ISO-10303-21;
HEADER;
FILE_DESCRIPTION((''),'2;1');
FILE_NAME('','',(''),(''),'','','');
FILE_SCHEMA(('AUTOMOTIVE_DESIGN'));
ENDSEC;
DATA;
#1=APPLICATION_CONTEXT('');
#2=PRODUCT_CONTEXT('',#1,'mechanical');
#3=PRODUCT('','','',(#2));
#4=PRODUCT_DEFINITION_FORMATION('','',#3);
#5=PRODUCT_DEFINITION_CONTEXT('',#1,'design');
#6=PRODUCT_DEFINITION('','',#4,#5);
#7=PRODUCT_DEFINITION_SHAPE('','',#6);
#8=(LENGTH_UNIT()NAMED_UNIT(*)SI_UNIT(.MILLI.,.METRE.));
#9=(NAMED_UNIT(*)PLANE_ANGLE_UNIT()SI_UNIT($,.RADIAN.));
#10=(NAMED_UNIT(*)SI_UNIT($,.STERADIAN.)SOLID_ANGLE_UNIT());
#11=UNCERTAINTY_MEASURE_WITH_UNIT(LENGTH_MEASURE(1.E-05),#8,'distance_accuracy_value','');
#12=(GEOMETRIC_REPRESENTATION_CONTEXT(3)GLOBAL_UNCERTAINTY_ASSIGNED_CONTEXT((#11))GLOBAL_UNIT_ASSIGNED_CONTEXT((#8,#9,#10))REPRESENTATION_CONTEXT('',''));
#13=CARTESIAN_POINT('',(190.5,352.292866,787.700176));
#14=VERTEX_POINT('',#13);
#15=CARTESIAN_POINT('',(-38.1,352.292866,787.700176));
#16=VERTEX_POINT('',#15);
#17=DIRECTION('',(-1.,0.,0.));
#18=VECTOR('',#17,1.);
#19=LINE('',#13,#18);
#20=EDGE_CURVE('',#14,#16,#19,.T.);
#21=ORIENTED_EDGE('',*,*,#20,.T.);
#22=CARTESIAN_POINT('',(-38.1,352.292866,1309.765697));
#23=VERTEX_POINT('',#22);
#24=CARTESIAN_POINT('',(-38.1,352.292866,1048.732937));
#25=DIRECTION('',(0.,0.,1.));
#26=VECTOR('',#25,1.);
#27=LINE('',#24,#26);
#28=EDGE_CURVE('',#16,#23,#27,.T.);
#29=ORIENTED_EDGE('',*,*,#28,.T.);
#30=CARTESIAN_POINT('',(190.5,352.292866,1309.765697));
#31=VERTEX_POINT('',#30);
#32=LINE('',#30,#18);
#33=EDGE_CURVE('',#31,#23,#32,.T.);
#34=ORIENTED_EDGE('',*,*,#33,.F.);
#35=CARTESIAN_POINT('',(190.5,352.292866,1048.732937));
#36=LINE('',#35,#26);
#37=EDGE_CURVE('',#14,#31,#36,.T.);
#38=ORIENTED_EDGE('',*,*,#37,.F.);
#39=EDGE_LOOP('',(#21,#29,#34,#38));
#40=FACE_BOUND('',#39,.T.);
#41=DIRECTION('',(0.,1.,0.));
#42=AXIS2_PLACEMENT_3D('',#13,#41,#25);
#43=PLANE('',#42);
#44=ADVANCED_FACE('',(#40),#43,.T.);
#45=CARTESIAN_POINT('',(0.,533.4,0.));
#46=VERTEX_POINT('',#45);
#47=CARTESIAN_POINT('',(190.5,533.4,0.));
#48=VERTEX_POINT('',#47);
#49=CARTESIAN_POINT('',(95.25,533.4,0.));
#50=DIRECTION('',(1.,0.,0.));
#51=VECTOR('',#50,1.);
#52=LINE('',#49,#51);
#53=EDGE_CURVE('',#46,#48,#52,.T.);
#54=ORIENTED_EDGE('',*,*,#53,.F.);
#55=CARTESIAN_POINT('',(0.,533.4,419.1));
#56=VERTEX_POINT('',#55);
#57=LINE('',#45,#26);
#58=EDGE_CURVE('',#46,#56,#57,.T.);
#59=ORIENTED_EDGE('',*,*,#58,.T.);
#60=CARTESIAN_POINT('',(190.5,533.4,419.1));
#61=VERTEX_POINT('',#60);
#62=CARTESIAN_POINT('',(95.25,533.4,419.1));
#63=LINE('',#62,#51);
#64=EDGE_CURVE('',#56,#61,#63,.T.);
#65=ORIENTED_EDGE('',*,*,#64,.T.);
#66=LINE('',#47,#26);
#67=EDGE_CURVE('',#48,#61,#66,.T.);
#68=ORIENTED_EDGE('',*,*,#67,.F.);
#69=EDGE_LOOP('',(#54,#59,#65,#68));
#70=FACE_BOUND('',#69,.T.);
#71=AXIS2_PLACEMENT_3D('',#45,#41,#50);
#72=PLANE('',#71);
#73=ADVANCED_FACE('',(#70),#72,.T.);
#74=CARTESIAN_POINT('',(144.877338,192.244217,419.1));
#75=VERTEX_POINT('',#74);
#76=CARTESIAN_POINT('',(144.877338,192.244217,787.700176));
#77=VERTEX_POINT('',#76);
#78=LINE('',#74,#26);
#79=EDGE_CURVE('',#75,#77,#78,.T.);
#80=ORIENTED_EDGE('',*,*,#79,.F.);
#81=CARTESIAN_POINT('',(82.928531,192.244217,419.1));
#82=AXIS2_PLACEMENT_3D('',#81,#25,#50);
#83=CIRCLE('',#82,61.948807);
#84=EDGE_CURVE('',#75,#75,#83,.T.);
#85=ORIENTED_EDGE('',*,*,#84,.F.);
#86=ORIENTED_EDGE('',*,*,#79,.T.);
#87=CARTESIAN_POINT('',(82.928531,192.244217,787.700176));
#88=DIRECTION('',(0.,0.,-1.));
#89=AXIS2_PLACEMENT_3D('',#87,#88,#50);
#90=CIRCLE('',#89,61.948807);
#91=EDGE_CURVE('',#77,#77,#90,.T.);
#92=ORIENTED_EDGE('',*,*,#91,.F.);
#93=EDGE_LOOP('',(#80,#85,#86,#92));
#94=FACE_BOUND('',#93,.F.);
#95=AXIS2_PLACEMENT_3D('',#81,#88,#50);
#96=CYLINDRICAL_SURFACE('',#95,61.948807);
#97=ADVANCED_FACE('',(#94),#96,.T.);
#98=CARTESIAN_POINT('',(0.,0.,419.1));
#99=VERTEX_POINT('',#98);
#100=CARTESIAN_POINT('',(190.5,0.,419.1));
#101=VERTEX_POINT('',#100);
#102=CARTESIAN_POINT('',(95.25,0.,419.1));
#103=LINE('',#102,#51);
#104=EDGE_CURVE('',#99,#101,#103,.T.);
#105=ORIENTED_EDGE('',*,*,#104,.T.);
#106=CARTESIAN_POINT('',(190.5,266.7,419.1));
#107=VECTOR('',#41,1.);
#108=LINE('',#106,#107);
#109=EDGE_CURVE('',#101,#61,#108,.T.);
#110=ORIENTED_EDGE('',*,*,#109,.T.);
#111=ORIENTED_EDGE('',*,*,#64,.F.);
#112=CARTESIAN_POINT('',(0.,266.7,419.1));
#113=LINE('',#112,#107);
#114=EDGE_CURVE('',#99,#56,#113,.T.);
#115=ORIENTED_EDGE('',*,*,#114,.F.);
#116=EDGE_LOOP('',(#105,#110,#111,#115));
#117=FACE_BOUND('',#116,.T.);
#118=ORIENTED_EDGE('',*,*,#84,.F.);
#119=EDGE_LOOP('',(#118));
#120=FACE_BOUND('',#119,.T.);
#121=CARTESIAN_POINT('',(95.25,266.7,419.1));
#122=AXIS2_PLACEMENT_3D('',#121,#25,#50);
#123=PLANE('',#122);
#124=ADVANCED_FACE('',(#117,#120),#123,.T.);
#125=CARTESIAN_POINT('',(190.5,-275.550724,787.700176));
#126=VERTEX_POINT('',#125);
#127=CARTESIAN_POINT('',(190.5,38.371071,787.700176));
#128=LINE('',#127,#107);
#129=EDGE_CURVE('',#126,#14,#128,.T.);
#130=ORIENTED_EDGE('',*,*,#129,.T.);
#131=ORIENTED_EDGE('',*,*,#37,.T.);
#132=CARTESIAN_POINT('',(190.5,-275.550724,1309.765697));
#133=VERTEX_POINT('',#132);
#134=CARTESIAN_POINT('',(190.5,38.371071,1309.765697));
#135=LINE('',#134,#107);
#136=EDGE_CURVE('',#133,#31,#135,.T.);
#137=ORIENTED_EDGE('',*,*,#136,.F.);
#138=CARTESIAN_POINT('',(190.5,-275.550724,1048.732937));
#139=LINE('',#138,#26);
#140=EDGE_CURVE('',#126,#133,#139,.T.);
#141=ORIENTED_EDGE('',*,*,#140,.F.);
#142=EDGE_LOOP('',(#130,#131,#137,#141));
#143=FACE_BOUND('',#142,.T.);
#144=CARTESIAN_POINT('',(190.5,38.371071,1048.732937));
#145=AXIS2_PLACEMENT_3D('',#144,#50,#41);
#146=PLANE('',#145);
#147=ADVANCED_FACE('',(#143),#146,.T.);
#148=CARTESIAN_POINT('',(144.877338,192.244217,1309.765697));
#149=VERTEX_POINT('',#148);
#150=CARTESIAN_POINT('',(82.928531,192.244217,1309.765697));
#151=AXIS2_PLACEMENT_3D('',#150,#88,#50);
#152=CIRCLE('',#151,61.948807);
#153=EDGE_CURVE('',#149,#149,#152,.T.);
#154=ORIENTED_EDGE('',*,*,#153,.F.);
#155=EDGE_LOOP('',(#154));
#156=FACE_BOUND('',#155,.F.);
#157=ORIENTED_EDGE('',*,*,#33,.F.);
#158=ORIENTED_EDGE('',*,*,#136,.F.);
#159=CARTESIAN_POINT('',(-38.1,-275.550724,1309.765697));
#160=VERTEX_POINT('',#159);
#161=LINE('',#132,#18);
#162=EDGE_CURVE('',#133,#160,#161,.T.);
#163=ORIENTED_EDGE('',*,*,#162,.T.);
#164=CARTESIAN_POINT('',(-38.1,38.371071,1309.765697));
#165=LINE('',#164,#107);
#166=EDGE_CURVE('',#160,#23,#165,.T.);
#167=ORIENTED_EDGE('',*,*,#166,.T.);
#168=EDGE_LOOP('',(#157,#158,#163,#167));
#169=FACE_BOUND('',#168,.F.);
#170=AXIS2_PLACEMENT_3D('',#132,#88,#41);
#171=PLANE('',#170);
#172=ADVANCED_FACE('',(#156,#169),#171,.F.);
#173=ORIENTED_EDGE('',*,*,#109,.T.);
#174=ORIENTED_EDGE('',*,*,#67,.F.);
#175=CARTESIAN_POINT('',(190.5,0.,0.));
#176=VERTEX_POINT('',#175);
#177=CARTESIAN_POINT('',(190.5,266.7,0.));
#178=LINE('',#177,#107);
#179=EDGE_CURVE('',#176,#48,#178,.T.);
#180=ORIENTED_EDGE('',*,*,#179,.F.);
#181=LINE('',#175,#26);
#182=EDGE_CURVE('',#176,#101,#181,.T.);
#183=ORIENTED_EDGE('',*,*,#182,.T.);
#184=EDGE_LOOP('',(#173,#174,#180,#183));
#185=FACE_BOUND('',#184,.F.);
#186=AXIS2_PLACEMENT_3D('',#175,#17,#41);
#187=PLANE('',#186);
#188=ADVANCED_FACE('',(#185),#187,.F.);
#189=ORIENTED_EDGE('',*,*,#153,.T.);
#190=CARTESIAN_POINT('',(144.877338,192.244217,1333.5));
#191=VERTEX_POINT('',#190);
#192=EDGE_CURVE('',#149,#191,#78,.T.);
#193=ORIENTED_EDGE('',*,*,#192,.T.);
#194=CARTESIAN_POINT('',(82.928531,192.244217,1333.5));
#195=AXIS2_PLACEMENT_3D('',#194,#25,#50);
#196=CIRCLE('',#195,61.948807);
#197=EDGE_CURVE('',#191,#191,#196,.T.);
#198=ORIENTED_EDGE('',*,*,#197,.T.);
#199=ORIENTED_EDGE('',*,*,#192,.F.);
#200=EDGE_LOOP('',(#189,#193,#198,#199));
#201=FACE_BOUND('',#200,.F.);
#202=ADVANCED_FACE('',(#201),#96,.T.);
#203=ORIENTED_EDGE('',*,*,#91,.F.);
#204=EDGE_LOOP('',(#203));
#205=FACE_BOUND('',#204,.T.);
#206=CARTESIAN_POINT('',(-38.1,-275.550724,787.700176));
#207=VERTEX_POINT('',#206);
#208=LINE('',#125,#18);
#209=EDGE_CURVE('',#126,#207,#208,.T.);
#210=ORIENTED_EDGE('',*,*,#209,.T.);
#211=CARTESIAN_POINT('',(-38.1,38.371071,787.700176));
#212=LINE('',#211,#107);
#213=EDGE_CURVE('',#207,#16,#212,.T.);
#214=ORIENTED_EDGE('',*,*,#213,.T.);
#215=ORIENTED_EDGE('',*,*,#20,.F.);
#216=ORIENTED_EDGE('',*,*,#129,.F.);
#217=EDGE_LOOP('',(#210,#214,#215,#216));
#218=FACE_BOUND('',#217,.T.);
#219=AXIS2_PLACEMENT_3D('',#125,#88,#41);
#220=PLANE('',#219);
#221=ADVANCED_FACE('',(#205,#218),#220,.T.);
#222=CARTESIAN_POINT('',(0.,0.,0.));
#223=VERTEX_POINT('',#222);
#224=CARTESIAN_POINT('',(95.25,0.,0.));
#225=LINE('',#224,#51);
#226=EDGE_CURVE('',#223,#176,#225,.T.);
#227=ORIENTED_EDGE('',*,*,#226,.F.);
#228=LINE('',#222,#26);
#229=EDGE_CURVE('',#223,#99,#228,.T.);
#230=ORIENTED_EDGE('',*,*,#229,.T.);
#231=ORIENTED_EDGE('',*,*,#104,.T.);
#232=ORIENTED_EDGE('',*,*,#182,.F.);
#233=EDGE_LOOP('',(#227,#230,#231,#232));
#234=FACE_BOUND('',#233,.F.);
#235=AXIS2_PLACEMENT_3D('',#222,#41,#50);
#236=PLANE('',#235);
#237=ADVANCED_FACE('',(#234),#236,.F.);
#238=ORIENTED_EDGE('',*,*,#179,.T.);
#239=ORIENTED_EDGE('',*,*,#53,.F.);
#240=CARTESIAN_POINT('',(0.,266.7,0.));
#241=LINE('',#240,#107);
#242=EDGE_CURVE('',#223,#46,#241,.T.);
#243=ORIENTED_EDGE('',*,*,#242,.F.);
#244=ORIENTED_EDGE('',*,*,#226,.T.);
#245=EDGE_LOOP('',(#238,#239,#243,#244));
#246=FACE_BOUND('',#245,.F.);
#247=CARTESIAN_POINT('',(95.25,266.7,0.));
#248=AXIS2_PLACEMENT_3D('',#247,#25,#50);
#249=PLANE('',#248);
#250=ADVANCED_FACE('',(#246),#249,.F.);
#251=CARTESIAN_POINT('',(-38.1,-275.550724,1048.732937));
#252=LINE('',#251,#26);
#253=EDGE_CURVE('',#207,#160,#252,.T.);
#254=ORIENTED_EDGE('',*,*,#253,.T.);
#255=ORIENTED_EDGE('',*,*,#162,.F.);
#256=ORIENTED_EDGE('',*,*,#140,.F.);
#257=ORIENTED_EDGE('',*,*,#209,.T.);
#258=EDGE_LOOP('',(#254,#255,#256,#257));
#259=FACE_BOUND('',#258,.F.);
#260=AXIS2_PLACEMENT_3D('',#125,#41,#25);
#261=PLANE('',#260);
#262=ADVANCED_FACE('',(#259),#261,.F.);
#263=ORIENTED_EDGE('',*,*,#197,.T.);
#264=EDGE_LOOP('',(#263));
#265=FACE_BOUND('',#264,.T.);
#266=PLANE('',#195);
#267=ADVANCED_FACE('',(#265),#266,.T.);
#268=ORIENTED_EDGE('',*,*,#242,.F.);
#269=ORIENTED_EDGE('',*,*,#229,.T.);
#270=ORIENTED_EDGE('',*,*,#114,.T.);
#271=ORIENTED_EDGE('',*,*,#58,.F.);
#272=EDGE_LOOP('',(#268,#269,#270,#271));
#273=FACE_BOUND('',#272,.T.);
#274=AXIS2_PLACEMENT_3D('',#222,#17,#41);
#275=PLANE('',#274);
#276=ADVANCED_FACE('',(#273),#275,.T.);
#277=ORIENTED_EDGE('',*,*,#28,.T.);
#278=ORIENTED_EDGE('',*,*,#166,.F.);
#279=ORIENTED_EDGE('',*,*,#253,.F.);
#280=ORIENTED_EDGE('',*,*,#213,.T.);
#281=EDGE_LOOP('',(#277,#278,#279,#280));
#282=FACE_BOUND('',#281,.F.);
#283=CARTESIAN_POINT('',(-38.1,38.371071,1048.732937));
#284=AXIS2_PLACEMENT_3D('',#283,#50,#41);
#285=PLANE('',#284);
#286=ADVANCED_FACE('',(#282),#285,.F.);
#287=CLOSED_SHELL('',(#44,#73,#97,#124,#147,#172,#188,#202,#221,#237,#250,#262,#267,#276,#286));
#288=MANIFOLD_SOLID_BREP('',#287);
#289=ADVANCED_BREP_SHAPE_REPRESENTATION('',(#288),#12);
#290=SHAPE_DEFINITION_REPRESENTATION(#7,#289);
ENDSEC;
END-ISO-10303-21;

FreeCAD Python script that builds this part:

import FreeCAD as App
import Part
import Sketcher
Q = App.Units.Quantity

doc = App.newDocument("Part")
body = doc.addObject("PartDesign::Body", "Body")

sketch1 = doc.addObject("Sketcher::SketchObject", "Sketch")
body.addObject(sketch1)
sketch1.AttachmentSupport = (doc.XY_Plane, [""])
sketch1.MapMode = "FlatFace"
sketch1.addGeometry(Part.LineSegment(App.Vector(0, 533.4, 0), App.Vector(0, 0, 0)), False)
sketch1.addGeometry(Part.LineSegment(App.Vector(0, 0, 0), App.Vector(190.5, 0, 0)), False)
sketch1.addGeometry(Part.LineSegment(App.Vector(190.5, 0, 0), App.Vector(190.5, 533.4, 0)), False)
sketch1.addGeometry(Part.LineSegment(App.Vector(190.5, 533.4, 0), App.Vector(0, 533.4, 0)), False)
sketch1.addConstraint(Sketcher.Constraint("Coincident", 0, 2, 1, 1))
sketch1.addConstraint(Sketcher.Constraint("Coincident", 1, 2, 2, 1))
sketch1.addConstraint(Sketcher.Constraint("Coincident", 2, 2, 3, 1))
sketch1.addConstraint(Sketcher.Constraint("Coincident", 3, 2, 0, 1))
sketch1.addConstraint(Sketcher.Constraint("Vertical", 0))
sketch1.addConstraint(Sketcher.Constraint("Horizontal", 1))
sketch1.addConstraint(Sketcher.Constraint("Vertical", 2))
sketch1.addConstraint(Sketcher.Constraint("Horizontal", 3))
sketch1.addConstraint(Sketcher.Constraint("Coincident", 0, 2, -1, 1))
sketch1.addConstraint(Sketcher.Constraint("DistanceY", 0, 2, 0, 1, Q("21 in")))
sketch1.addConstraint(Sketcher.Constraint("DistanceX", 1, 1, 1, 2, Q("7.5 in")))
pad1 = doc.addObject("PartDesign::Pad", "Pad")
body.addObject(pad1)
pad1.Profile = sketch1
pad1.Length = Q("16.5 in")

sketch2 = doc.addObject("Sketcher::SketchObject", "Sketch001")
body.addObject(sketch2)
sketch2.AttachmentSupport = (doc.XY_Plane, [""])
sketch2.MapMode = "FlatFace"
sketch2.AttachmentOffset = App.Placement(App.Vector(0, 0, 16.5 * 25.4), App.Rotation())
sketch2.addGeometry(Part.Circle(App.Vector(82.928531, 192.244217, 0), App.Vector(0, 0, 1), 61.948807), False)
sketch2.addConstraint(Sketcher.Constraint("Diameter", 0, 123.897614))
sketch2.addConstraint(Sketcher.Constraint("DistanceX", -1, 1, 0, 3, 82.928531))
sketch2.addConstraint(Sketcher.Constraint("DistanceY", -1, 1, 0, 3, 192.244217))
pad2 = doc.addObject("PartDesign::Pad", "Pad001")
body.addObject(pad2)
pad2.Profile = sketch2
pad2.Length = Q("36 in")

sketch3 = doc.addObject("Sketcher::SketchObject", "Sketch002")
body.addObject(sketch3)
sketch3.AttachmentSupport = (doc.YZ_Plane, [""])
sketch3.MapMode = "FlatFace"
sketch3.AttachmentOffset = App.Placement(App.Vector(0, 0, 7.5 * 25.4), App.Rotation())
sketch3.addGeometry(Part.LineSegment(App.Vector(-275.550724, 1309.765697, 0), App.Vector(-275.550724, 787.700176, 0)), False)
sketch3.addGeometry(Part.LineSegment(App.Vector(-275.550724, 787.700176, 0), App.Vector(352.292866, 787.700176, 0)), False)
sketch3.addGeometry(Part.LineSegment(App.Vector(352.292866, 787.700176, 0), App.Vector(352.292866, 1309.765697, 0)), False)
sketch3.addGeometry(Part.LineSegment(App.Vector(352.292866, 1309.765697, 0), App.Vector(-275.550724, 1309.765697, 0)), False)
sketch3.addConstraint(Sketcher.Constraint("Coincident", 0, 2, 1, 1))
sketch3.addConstraint(Sketcher.Constraint("Coincident", 1, 2, 2, 1))
sketch3.addConstraint(Sketcher.Constraint("Coincident", 2, 2, 3, 1))
sketch3.addConstraint(Sketcher.Constraint("Coincident", 3, 2, 0, 1))
sketch3.addConstraint(Sketcher.Constraint("Vertical", 0))
sketch3.addConstraint(Sketcher.Constraint("Horizontal", 1))
sketch3.addConstraint(Sketcher.Constraint("Vertical", 2))
sketch3.addConstraint(Sketcher.Constraint("Horizontal", 3))
sketch3.addConstraint(Sketcher.Constraint("DistanceX", 1, 1, 1, 2, 627.843589))
sketch3.addConstraint(Sketcher.Constraint("DistanceY", 0, 2, 0, 1, 522.065521))
sketch3.addConstraint(Sketcher.Constraint("DistanceX", 0, 2, -1, 1, 275.550724))
sketch3.addConstraint(Sketcher.Constraint("DistanceY", -1, 1, 0, 2, 787.700176))
pad3 = doc.addObject("PartDesign::Pad", "Pad002")
body.addObject(pad3)
pad3.Profile = sketch3
pad3.Length = Q("9 in")
pad3.Reversed = True

doc.recompute()
